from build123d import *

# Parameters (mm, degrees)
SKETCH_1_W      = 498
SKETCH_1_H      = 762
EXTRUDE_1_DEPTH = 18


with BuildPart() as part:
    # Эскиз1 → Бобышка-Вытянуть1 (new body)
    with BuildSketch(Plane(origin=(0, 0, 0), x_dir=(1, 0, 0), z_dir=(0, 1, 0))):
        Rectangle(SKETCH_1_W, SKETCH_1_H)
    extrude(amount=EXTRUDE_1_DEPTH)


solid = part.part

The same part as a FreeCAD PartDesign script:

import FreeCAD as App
import Part
import Sketcher
from FreeCAD import Vector
Q = App.Units.Quantity


def add_polygon(sketch, points):
    """Adds a closed chain of lines whose ends are joined by coincident constraints."""
    first, n = sketch.GeometryCount, len(points)
    for a, b in zip(points, points[1:] + points[:1]):
        sketch.addGeometry(Part.LineSegment(App.Vector(*a, 0), App.Vector(*b, 0)), False)
    for i in range(n):
        sketch.addConstraint(Sketcher.Constraint("Coincident", first + i, 2, first + (i + 1) % n, 1))

doc = App.newDocument("Part")
params = doc.addObject("Spreadsheet::Sheet", "Params")
for row, (alias, value) in enumerate([
    ("sketch1_width", "498 mm"),
    ("sketch1_height", "762 mm"),
    ("pad1_length", "18 mm"),
], start=1):
    params.set(f"A{row}", alias)
    params.set(f"B{row}", "=" + value)
    params.setAlias(f"B{row}", alias)

body = doc.addObject("PartDesign::Body", "Body")

# Sketch on XZ plane
sketch1 = body.newObject("Sketcher::SketchObject", "Sketch")
sketch1.AttachmentSupport = (doc.getObject("XZ_Plane"), [""])
sketch1.MapMode = "FlatFace"
add_polygon(sketch1, [(-249, -381), (-249, 381), (249, 381), (249, -381)])  # lines 0-3
sketch1.addConstraint([
    Sketcher.Constraint("Vertical", 0),
    Sketcher.Constraint("Horizontal", 1),
    Sketcher.Constraint("Vertical", 2),
    Sketcher.Constraint("Horizontal", 3),
    Sketcher.Constraint("Symmetric", 0, 2, 2, 2, -1, 1),
    Sketcher.Constraint("DistanceX", 1, 1, 1, 2, Q("498 mm")),
    Sketcher.Constraint("DistanceY", 0, 1, 0, 2, Q("762 mm")),
])
sketch1.setExpression("Constraints[9]", "Params.sketch1_width")
sketch1.setExpression("Constraints[10]", "Params.sketch1_height")
pad1 = body.newObject("PartDesign::Pad", "Pad")
pad1.Profile = sketch1
pad1.setExpression("Length", "Params.pad1_length")
pad1.Reversed = True

doc.recompute()
